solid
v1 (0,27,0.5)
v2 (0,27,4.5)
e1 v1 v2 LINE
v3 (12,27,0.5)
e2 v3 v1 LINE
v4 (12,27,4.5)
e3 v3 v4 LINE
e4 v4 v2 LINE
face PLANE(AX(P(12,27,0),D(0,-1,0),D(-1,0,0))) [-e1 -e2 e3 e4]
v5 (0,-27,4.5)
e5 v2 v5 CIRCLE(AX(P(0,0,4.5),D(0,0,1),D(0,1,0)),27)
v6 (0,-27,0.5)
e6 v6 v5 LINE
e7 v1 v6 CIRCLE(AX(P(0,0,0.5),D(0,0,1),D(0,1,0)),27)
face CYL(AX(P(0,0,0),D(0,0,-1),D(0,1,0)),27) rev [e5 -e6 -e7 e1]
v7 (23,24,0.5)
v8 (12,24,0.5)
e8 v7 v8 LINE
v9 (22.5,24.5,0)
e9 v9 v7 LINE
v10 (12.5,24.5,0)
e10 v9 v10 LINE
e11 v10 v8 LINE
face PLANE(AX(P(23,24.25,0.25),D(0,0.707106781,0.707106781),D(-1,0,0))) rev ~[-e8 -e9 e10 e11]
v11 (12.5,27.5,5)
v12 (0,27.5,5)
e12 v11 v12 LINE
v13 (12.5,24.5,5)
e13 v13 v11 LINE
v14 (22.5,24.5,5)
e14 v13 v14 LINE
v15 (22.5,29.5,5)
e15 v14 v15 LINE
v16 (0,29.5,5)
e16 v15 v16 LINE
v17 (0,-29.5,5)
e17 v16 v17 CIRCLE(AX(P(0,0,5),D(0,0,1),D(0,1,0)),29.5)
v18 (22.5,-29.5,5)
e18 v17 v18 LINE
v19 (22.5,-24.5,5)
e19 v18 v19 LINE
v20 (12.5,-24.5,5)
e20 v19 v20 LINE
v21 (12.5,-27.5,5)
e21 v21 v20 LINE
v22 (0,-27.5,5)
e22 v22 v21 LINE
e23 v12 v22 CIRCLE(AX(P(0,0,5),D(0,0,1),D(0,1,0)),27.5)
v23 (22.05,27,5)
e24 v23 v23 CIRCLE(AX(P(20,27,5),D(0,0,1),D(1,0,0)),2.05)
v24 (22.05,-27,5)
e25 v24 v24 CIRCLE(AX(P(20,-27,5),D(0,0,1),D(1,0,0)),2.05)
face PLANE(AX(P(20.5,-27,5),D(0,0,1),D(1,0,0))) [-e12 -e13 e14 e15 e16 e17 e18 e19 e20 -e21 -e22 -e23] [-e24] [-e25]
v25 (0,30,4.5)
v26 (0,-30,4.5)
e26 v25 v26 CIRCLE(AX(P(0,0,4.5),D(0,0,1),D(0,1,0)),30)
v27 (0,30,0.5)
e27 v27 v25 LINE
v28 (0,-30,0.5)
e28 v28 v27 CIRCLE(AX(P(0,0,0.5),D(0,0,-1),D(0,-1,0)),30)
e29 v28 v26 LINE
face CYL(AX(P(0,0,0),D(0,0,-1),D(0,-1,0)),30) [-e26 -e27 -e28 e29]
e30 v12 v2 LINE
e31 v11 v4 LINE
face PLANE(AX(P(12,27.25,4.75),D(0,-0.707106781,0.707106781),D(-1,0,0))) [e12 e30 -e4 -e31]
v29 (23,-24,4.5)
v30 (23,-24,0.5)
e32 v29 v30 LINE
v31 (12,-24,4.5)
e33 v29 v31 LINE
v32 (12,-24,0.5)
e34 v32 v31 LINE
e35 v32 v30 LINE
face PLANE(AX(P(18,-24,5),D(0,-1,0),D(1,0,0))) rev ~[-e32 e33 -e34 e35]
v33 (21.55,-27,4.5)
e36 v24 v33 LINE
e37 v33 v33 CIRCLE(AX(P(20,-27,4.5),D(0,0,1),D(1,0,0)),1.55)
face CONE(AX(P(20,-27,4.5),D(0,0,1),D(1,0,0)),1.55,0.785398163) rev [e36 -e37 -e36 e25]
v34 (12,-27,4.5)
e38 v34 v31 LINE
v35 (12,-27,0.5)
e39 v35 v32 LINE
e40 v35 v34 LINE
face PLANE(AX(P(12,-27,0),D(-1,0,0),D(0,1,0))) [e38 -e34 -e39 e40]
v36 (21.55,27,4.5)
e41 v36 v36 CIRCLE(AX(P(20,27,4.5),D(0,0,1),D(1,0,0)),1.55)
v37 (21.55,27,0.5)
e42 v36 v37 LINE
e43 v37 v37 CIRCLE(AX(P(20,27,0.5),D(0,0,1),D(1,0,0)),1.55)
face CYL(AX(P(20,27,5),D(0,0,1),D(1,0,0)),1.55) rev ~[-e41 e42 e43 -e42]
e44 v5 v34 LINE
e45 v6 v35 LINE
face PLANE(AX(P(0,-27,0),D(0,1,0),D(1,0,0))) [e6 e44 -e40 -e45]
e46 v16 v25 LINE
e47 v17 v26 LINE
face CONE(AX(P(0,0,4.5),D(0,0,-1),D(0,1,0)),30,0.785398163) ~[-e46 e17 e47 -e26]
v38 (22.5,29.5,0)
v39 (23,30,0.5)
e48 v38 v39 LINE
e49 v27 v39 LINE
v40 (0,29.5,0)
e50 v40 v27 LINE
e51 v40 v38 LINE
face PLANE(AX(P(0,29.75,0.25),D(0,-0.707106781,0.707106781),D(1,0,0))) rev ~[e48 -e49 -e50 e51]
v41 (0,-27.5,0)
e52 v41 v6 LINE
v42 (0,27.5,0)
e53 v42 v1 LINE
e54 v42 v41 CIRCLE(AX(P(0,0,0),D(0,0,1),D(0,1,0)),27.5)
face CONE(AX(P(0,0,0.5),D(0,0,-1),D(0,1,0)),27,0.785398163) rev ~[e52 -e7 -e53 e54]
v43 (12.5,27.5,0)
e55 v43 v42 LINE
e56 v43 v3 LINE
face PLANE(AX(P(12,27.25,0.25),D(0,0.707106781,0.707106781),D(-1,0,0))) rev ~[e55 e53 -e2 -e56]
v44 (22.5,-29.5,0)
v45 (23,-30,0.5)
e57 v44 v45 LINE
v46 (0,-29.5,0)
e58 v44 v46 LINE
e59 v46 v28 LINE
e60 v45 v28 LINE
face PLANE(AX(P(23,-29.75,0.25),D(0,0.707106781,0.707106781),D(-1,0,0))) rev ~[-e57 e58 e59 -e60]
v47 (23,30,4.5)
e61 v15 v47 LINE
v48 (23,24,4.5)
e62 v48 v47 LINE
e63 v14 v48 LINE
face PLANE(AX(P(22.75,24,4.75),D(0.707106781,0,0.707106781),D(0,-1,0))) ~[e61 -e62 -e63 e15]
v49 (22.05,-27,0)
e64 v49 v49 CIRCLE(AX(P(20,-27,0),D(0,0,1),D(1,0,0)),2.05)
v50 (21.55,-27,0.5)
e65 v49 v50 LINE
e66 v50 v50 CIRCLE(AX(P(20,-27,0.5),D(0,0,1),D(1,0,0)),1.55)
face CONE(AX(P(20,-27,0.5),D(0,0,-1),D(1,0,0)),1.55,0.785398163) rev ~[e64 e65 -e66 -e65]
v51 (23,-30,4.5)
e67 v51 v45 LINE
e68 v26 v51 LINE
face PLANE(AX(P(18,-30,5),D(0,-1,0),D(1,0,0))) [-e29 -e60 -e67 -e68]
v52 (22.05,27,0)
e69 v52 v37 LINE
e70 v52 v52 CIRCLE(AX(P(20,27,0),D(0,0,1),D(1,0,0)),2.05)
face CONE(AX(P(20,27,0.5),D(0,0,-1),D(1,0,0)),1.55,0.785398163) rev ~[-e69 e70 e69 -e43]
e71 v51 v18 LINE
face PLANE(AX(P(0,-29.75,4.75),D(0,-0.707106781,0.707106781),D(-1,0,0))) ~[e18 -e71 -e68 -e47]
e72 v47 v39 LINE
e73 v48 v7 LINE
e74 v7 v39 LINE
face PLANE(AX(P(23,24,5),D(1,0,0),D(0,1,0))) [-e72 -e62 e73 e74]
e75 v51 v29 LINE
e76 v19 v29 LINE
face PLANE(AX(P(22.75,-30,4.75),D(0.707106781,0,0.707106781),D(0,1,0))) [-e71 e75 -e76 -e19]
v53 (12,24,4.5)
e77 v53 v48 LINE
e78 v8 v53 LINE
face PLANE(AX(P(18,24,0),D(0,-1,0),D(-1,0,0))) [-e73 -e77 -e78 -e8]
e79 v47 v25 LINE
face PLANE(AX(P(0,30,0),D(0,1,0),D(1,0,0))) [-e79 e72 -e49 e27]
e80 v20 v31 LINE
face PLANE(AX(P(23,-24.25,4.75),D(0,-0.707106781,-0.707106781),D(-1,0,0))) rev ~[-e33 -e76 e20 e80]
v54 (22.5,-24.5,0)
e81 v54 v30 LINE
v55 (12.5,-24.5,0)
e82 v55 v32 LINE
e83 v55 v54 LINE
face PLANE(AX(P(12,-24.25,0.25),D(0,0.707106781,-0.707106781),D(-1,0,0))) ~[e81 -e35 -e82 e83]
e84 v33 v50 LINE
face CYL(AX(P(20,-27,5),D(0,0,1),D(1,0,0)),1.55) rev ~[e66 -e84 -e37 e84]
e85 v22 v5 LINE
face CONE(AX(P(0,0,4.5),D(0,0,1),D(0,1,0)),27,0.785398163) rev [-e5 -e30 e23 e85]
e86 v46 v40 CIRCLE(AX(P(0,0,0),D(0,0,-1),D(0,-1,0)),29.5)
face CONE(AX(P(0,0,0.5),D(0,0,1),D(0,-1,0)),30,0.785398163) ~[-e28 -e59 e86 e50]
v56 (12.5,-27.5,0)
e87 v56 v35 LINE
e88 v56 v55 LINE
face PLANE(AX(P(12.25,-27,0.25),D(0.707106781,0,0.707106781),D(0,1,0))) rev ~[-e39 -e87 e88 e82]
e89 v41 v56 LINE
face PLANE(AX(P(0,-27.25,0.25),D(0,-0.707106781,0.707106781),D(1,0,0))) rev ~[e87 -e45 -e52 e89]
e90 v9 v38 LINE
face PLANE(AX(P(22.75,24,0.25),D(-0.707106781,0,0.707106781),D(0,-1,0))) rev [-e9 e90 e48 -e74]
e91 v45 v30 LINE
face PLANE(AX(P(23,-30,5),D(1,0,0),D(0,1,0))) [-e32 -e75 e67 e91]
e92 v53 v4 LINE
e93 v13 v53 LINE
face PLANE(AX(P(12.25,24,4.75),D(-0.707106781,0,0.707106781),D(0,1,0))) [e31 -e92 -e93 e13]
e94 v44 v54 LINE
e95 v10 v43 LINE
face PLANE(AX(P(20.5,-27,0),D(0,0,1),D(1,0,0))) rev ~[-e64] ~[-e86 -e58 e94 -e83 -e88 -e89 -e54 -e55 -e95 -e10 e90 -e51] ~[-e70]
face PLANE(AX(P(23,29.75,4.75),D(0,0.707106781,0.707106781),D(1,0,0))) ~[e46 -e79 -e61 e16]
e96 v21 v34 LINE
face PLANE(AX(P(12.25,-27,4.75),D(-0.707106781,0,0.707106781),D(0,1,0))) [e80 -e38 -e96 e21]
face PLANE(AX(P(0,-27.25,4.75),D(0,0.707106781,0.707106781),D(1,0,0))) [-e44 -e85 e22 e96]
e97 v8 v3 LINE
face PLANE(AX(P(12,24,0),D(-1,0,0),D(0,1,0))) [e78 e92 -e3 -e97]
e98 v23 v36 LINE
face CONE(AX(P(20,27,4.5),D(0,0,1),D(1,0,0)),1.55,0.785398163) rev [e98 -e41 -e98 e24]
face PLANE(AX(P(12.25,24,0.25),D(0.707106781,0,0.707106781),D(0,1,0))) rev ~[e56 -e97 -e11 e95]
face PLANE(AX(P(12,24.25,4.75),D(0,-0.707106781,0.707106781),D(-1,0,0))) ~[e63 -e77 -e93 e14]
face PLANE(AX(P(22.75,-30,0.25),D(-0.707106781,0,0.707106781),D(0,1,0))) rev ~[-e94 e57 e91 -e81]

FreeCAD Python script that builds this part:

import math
import FreeCAD as App
import Part
import Sketcher
from FreeCAD import Vector


def edges_at(feature, points):
    """Names of the edges that pass closest to the given points."""
    edges = feature.Shape.Edges
    near = lambda p: min(range(len(edges)), key=lambda i: edges[i].distToShape(Part.Vertex(*p))[0])
    return sorted({f"Edge{near(p) + 1}" for p in points})


def add_polygon(sketch, points):
    """Adds a closed chain of lines whose ends are joined by coincident constraints."""
    first, n = sketch.GeometryCount, len(points)
    for a, b in zip(points, points[1:] + points[:1]):
        sketch.addGeometry(Part.LineSegment(App.Vector(*a, 0), App.Vector(*b, 0)), False)
    for i in range(n):
        sketch.addConstraint(Sketcher.Constraint("Coincident", first + i, 2, first + (i + 1) % n, 1))

doc = App.newDocument("Part")
body = doc.addObject("PartDesign::Body", "Body")

sketch1 = body.newObject("Sketcher::SketchObject", "Sketch")
sketch1.AttachmentSupport = (doc.getObject("XY_Plane"), [""])
sketch1.MapMode = "FlatFace"
sketch1.addGeometry(Part.LineSegment(Vector(18, 30, 0), Vector(0, 30, 0)), False)
sketch1.addGeometry(Part.ArcOfCircle(Part.Circle(Vector(0, 0, 0), Vector(0, 0, 1), 30), math.radians(90), math.radians(270)), False)
sketch1.addGeometry(Part.LineSegment(Vector(0, -30, 0), Vector(18, -30, 0)), False)
sketch1.addGeometry(Part.LineSegment(Vector(18, -30, 0), Vector(18, -24, 0)), False)
sketch1.addGeometry(Part.LineSegment(Vector(18, -24, 0), Vector(12, -24, 0)), False)
sketch1.addGeometry(Part.LineSegment(Vector(12, -24, 0), Vector(12, -27, 0)), False)
sketch1.addGeometry(Part.LineSegment(Vector(12, -27, 0), Vector(0, -27, 0)), False)
sketch1.addGeometry(Part.ArcOfCircle(Part.Circle(Vector(0, 0, 0), Vector(0, 0, 1), 27), math.radians(90), math.radians(270)), False)
sketch1.addGeometry(Part.LineSegment(Vector(0, 27, 0), Vector(12, 27, 0)), False)
sketch1.addGeometry(Part.LineSegment(Vector(12, 27, 0), Vector(12, 24, 0)), False)
sketch1.addGeometry(Part.LineSegment(Vector(12, 24, 0), Vector(18, 24, 0)), False)
sketch1.addGeometry(Part.LineSegment(Vector(18, 24, 0), Vector(18, 30, 0)), False)
sketch1.addConstraint(Sketcher.Constraint("Tangent", 0, 2, 1, 1))
sketch1.addConstraint(Sketcher.Constraint("Tangent", 1, 2, 2, 1))
sketch1.addConstraint(Sketcher.Constraint("Coincident", 2, 2, 3, 1))
sketch1.addConstraint(Sketcher.Constraint("Coincident", 3, 2, 4, 1))
sketch1.addConstraint(Sketcher.Constraint("Coincident", 4, 2, 5, 1))
sketch1.addConstraint(Sketcher.Constraint("Coincident", 5, 2, 6, 1))
sketch1.addConstraint(Sketcher.Constraint("Tangent", 6, 2, 7, 2))
sketch1.addConstraint(Sketcher.Constraint("Tangent", 7, 1, 8, 1))
sketch1.addConstraint(Sketcher.Constraint("Coincident", 8, 2, 9, 1))
sketch1.addConstraint(Sketcher.Constraint("Coincident", 9, 2, 10, 1))
sketch1.addConstraint(Sketcher.Constraint("Coincident", 10, 2, 11, 1))
sketch1.addConstraint(Sketcher.Constraint("Coincident", 11, 2, 0, 1))
sketch1.addConstraint(Sketcher.Constraint("Horizontal", 0))
sketch1.addConstraint(Sketcher.Constraint("Horizontal", 2))
sketch1.addConstraint(Sketcher.Constraint("Vertical", 3))
sketch1.addConstraint(Sketcher.Constraint("Horizontal", 4))
sketch1.addConstraint(Sketcher.Constraint("Vertical", 5))
sketch1.addConstraint(Sketcher.Constraint("Horizontal", 6))
sketch1.addConstraint(Sketcher.Constraint("Horizontal", 8))
sketch1.addConstraint(Sketcher.Constraint("Vertical", 9))
sketch1.addConstraint(Sketcher.Constraint("Horizontal", 10))
sketch1.addConstraint(Sketcher.Constraint("Vertical", 11))
sketch1.addConstraint(Sketcher.Constraint("Coincident", 1, 3, -1, 1))
sketch1.addConstraint(Sketcher.Constraint("Coincident", 7, 3, -1, 1))
sketch1.addConstraint(Sketcher.Constraint("Symmetric", 4, 2, 9, 2, -1))
sketch1.addConstraint(Sketcher.Constraint("Vertical", 3, 2, 10, 2))
sketch1.addConstraint(Sketcher.Constraint("Equal", 10, 3))
sketch1.addConstraint(Sketcher.Constraint("Radius", 1, 30.0))
sketch1.addConstraint(Sketcher.Constraint("Radius", 7, 27.0))
sketch1.addConstraint(Sketcher.Constraint("DistanceX", 0, 2, 0, 1, 18.0))
sketch1.addConstraint(Sketcher.Constraint("DistanceX", 4, 2, 4, 1, 6.0))
pad1 = body.newObject("PartDesign::Pad", "Pad")
pad1.Profile = sketch1
pad1.Length = 5

sketch2 = body.newObject("Sketcher::SketchObject", "Sketch001")
sketch2.AttachmentSupport = (doc.getObject("XY_Plane"), [""])
sketch2.MapMode = "FlatFace"
sketch2.AttachmentOffset = App.Placement(Vector(0, 0, 5), App.Rotation())
add_polygon(sketch2, [(18, -24), (18, -30), (23, -30), (23, -24)])
add_polygon(sketch2, [(18, 30), (18, 24), (23, 24), (23, 30)])
sketch2.addConstraint(Sketcher.Constraint("Vertical", 0))
sketch2.addConstraint(Sketcher.Constraint("Horizontal", 1))
sketch2.addConstraint(Sketcher.Constraint("Vertical", 2))
sketch2.addConstraint(Sketcher.Constraint("Horizontal", 3))
sketch2.addConstraint(Sketcher.Constraint("Vertical", 4))
sketch2.addConstraint(Sketcher.Constraint("Horizontal", 5))
sketch2.addConstraint(Sketcher.Constraint("Vertical", 6))
sketch2.addConstraint(Sketcher.Constraint("Horizontal", 7))
sketch2.addConstraint(Sketcher.Constraint("Symmetric", 3, 2, 4, 2, -1))
sketch2.addConstraint(Sketcher.Constraint("Symmetric", 1, 2, 6, 2, -1))
sketch2.addConstraint(Sketcher.Constraint("DistanceX", 1, 1, 1, 2, 5.0))
sketch2.addConstraint(Sketcher.Constraint("DistanceY", 0, 2, 0, 1, 6.0))
sketch2.addConstraint(Sketcher.Constraint("DistanceX", -1, 1, 0, 2, 18.0))
sketch2.addConstraint(Sketcher.Constraint("DistanceY", 0, 2, -1, 1, 30.0))
pad2 = body.newObject("PartDesign::Pad", "Pad001")
pad2.Profile = sketch2
pad2.Length = 5
pad2.Reversed = True

sketch3 = body.newObject("Sketcher::SketchObject", "Sketch002")
sketch3.AttachmentSupport = (doc.getObject("XY_Plane"), [""])
sketch3.MapMode = "FlatFace"
sketch3.AttachmentOffset = App.Placement(Vector(0, 0, 5), App.Rotation())
sketch3.addGeometry(Part.Circle(Vector(20, -27, 0), Vector(0, 0, 1), 1.55), False)
sketch3.addGeometry(Part.Circle(Vector(20, 27, 0), Vector(0, 0, 1), 1.55), False)
sketch3.addConstraint(Sketcher.Constraint("Equal", 0, 1))
sketch3.addConstraint(Sketcher.Constraint("Symmetric", 0, 3, 1, 3, -1))
sketch3.addConstraint(Sketcher.Constraint("Diameter", 0, 3.1))
sketch3.addConstraint(Sketcher.Constraint("DistanceX", -1, 1, 0, 3, 20.0))
sketch3.addConstraint(Sketcher.Constraint("DistanceY", 0, 3, -1, 1, 27.0))
pocket1 = body.newObject("PartDesign::Pocket", "Pocket")
pocket1.Profile = sketch3
pocket1.Type = "ThroughAll"
doc.recompute()

chamfer = body.newObject("PartDesign::Chamfer", "Chamfer")
chamfer.Base = (pocket1, edges_at(pocket1, [
    (11.5, 30, 0),
    (17.5, 24, 0),
    (12, 25.5, 0),
    (6, 27, 0),
    (-27, 0, 0),
    (17.5, -24, 5),
    (6, -27, 0),
    (12, -25.5, 0),
    (17.5, -24, 0),
    (11.5, -30, 0),
    (-30, 0, 0),
    (12, -25.5, 5),
    (6, -27, 5),
    (-27, 0, 5),
    (6, 27, 5),
    (12, 25.5, 5),
    (17.5, 24, 5),
    (23, -27, 5),
    (23, -27, 0),
    (11.5, 30, 5),
    (-30, 0, 5),
    (23, 27, 5),
    (23, 27, 0),
    (18.45, -27, 0),
    (18.45, -27, 5),
    (18.45, 27, 0),
    (18.45, 27, 5),
    (11.5, -30, 5),
]))
chamfer.Size = 0.5

doc.recompute()
